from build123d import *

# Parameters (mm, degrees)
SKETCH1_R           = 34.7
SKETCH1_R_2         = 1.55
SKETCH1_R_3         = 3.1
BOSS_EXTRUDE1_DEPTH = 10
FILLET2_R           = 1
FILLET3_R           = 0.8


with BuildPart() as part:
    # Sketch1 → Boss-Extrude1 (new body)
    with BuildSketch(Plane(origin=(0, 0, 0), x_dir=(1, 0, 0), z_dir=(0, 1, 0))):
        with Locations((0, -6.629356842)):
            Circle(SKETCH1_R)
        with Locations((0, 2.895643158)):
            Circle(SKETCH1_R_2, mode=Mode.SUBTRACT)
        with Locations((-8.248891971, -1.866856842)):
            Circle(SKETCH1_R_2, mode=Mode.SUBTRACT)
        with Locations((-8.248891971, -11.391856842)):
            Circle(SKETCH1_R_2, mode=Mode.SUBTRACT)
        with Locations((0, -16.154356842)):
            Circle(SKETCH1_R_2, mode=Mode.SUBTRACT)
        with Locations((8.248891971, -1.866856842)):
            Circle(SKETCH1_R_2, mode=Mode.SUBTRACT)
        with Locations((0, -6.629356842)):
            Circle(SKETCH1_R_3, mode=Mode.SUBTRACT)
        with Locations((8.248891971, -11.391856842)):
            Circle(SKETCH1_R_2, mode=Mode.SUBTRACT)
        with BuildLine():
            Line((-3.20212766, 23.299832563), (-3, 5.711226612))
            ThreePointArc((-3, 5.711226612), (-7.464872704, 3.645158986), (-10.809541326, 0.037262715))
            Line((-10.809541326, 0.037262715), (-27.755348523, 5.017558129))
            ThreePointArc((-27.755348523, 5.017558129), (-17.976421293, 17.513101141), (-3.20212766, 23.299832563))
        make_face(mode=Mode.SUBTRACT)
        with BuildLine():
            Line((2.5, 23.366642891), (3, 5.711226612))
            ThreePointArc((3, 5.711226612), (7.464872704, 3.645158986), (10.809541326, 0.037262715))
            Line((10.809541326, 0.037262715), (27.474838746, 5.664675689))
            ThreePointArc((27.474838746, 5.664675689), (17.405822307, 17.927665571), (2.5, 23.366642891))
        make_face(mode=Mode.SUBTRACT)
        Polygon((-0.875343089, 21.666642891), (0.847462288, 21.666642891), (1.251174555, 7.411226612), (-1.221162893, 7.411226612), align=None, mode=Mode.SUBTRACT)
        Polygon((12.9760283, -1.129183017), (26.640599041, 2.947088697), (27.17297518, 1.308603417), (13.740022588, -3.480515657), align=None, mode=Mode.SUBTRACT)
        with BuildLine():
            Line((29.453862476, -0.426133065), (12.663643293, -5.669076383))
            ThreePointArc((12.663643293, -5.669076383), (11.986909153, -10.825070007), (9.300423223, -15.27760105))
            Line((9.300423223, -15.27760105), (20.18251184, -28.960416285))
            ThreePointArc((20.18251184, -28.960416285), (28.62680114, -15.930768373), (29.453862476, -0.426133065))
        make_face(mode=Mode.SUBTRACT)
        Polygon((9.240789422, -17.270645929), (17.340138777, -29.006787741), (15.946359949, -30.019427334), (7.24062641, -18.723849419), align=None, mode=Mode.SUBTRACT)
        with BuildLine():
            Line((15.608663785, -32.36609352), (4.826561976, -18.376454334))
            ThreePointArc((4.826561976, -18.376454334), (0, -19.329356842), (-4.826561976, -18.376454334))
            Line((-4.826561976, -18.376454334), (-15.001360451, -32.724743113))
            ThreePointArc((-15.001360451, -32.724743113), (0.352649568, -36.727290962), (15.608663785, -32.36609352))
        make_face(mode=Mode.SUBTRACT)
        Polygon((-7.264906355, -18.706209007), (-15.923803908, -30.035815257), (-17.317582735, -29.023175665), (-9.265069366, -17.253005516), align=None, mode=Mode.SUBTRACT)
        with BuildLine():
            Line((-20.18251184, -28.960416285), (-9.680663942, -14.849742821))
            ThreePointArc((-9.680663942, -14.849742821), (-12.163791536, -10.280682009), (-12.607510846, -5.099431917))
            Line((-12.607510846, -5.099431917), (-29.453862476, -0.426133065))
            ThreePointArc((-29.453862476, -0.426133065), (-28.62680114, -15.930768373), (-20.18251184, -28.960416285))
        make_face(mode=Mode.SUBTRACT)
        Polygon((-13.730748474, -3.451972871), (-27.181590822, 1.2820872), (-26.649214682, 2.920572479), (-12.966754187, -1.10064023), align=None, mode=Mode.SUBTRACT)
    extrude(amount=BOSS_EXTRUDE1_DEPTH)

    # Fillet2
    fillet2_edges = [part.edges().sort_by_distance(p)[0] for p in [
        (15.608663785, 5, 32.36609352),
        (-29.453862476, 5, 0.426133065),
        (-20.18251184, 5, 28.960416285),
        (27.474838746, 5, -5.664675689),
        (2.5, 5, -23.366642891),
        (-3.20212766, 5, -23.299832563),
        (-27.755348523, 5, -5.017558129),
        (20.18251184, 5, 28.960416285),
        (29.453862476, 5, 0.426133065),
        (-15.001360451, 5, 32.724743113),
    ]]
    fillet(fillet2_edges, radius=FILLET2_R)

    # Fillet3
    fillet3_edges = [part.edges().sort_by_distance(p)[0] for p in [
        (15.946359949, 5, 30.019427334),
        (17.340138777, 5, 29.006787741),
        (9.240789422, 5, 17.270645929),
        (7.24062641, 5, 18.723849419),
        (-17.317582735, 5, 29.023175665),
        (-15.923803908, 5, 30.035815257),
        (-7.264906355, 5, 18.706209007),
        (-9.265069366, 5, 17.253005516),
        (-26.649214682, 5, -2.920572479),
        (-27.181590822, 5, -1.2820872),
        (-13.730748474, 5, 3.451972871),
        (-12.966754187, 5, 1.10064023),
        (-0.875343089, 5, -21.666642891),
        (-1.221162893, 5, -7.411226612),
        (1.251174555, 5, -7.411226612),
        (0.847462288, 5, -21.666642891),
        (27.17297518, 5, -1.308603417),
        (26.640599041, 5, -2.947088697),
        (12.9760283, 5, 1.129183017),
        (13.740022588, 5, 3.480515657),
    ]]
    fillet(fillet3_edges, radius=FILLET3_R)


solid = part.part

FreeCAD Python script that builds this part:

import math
import FreeCAD as App
import Part
import Sketcher


def edges_at(feature, points):
    """Names of the edges that pass closest to the given points."""
    edges = feature.Shape.Edges
    near = lambda p: min(range(len(edges)), key=lambda i: edges[i].distToShape(Part.Vertex(*p))[0])
    return sorted({f"Edge{near(p) + 1}" for p in points})


def add_polygon(sketch, points):
    """Adds a closed chain of lines whose ends are joined by coincident constraints."""
    first, n = sketch.GeometryCount, len(points)
    for a, b in zip(points, points[1:] + points[:1]):
        sketch.addGeometry(Part.LineSegment(App.Vector(*a, 0), App.Vector(*b, 0)), False)
    for i in range(n):
        sketch.addConstraint(Sketcher.Constraint("Coincident", first + i, 2, first + (i + 1) % n, 1))

doc = App.newDocument("Part")
body = doc.addObject("PartDesign::Body", "Body")

sketch1 = body.newObject("Sketcher::SketchObject", "Sketch")
sketch1.AttachmentSupport = (doc.getObject("XZ_Plane"), [""])
sketch1.MapMode = "FlatFace"
sketch1.addGeometry(Part.Circle(App.Vector(0, 6.629357, 0), App.Vector(0, 0, 1), 34.7), False)
add_polygon(sketch1, [(-9.265069, 17.253006), (-7.264906, 18.706209), (-15.923804, 30.035815), (-17.317583, 29.023176)])
sketch1.addGeometry(Part.LineSegment(App.Vector(-9.680664, 14.849743, 0), App.Vector(-20.182512, 28.960416, 0)), False)
sketch1.addGeometry(Part.ArcOfCircle(Part.Circle(App.Vector(0, 6.629357, 0), App.Vector(0, 0, 1), 30.1), math.radians(132.106852), math.radians(191.893148)), False)
sketch1.addGeometry(Part.LineSegment(App.Vector(-29.453862, 0.426133, 0), App.Vector(-12.607511, 5.099432, 0)), False)
sketch1.addGeometry(Part.ArcOfCircle(Part.Circle(App.Vector(0, 6.629357, 0), App.Vector(0, 0, 1), 12.7), math.radians(139.663576), math.radians(186.919028)), False)
sketch1.addGeometry(Part.Circle(App.Vector(-8.248892, 11.391857, 0), App.Vector(0, 0, 1), 1.55), False)
sketch1.addGeometry(Part.LineSegment(App.Vector(4.826562, 18.376454, 0), App.Vector(15.608664, 32.366094, 0)), False)
sketch1.addGeometry(Part.ArcOfCircle(Part.Circle(App.Vector(0, 6.629357, 0), App.Vector(0, 0, 1), 30.1), math.radians(58.764274), math.radians(119.893148)), False)
sketch1.addGeometry(Part.LineSegment(App.Vector(-15.00136, 32.724743, 0), App.Vector(-4.826562, 18.376454, 0)), False)
sketch1.addGeometry(Part.ArcOfCircle(Part.Circle(App.Vector(0, 6.629357, 0), App.Vector(0, 0, 1), 12.7), math.radians(67.663576), math.radians(112.336424)), False)
add_polygon(sketch1, [(7.240626, 18.723849), (9.240789, 17.270646), (17.340139, 29.006788), (15.94636, 30.019427)])
sketch1.addGeometry(Part.Circle(App.Vector(0, 16.154357, 0), App.Vector(0, 0, 1), 1.55), False)
sketch1.addGeometry(Part.Circle(App.Vector(8.248892, 11.391857, 0), App.Vector(0, 0, 1), 1.55), False)
sketch1.addGeometry(Part.LineSegment(App.Vector(12.663643, 5.669076, 0), App.Vector(29.453862, 0.426133, 0)), False)
sketch1.addGeometry(Part.ArcOfCircle(Part.Circle(App.Vector(0, 6.629357, 0), App.Vector(0, 0, 1), 30.1), math.radians(-11.893148), math.radians(47.893148)), False)
sketch1.addGeometry(Part.LineSegment(App.Vector(20.182512, 28.960416, 0), App.Vector(9.300423, 15.277601, 0)), False)
sketch1.addGeometry(Part.ArcOfCircle(Part.Circle(App.Vector(0, 6.629357, 0), App.Vector(0, 0, 1), 12.7), math.radians(-4.336424), math.radians(42.919028)), False)
add_polygon(sketch1, [(-12.966754, 1.10064), (-13.730748, 3.451973), (-27.181591, -1.282087), (-26.649215, -2.920572)])
sketch1.addGeometry(Part.Circle(App.Vector(-8.248892, 1.866857, 0), App.Vector(0, 0, 1), 1.55), False)
sketch1.addGeometry(Part.ArcOfCircle(Part.Circle(App.Vector(0, 6.629357, 0), App.Vector(0, 0, 1), 30.1), math.radians(-157.235726), math.radians(-96.106852)), False)
sketch1.addGeometry(Part.LineSegment(App.Vector(-3.202128, -23.299833, 0), App.Vector(-3, -5.711227, 0)), False)
sketch1.addGeometry(Part.ArcOfCircle(Part.Circle(App.Vector(0, 6.629357, 0), App.Vector(0, 0, 1), 12.7), math.radians(-148.336424), math.radians(-103.663576)), False)
sketch1.addGeometry(Part.LineSegment(App.Vector(-10.809541, -0.037263, 0), App.Vector(-27.755349, -5.017558, 0)), False)
sketch1.addGeometry(Part.Circle(App.Vector(0, 6.629357, 0), App.Vector(0, 0, 1), 3.1), False)
sketch1.addGeometry(Part.Circle(App.Vector(8.248892, 1.866857, 0), App.Vector(0, 0, 1), 1.55), False)
sketch1.addGeometry(Part.Circle(App.Vector(0, -2.895643, 0), App.Vector(0, 0, 1), 1.55), False)
add_polygon(sketch1, [(13.740023, 3.480516), (12.976028, 1.129183), (26.640599, -2.947089), (27.172975, -1.308603)])
add_polygon(sketch1, [(-1.221163, -7.411227), (-0.875343, -21.666643), (0.847462, -21.666643), (1.251175, -7.411227)])
sketch1.addGeometry(Part.LineSegment(App.Vector(3, -5.711227, 0), App.Vector(2.5, -23.366643, 0)), False)
sketch1.addGeometry(Part.ArcOfCircle(Part.Circle(App.Vector(0, 6.629357, 0), App.Vector(0, 0, 1), 30.1), math.radians(-85.235726), math.radians(-24.106852)), False)
sketch1.addGeometry(Part.LineSegment(App.Vector(27.474839, -5.664676, 0), App.Vector(10.809541, -0.037263, 0)), False)
sketch1.addGeometry(Part.ArcOfCircle(Part.Circle(App.Vector(0, 6.629357, 0), App.Vector(0, 0, 1), 12.7), math.radians(-76.336424), math.radians(-31.663576)), False)
sketch1.addConstraint(Sketcher.Constraint("Coincident", 5, 2, 6, 1))
sketch1.addConstraint(Sketcher.Constraint("Coincident", 6, 2, 7, 1))
sketch1.addConstraint(Sketcher.Constraint("Coincident", 7, 2, 8, 2))
sketch1.addConstraint(Sketcher.Constraint("Coincident", 8, 1, 5, 1))
sketch1.addConstraint(Sketcher.Constraint("Coincident", 10, 2, 11, 1))
sketch1.addConstraint(Sketcher.Constraint("Coincident", 11, 2, 12, 1))
sketch1.addConstraint(Sketcher.Constraint("Coincident", 12, 2, 13, 2))
sketch1.addConstraint(Sketcher.Constraint("Coincident", 13, 1, 10, 1))
sketch1.addConstraint(Sketcher.Constraint("Coincident", 20, 2, 21, 1))
sketch1.addConstraint(Sketcher.Constraint("Coincident", 21, 2, 22, 1))
sketch1.addConstraint(Sketcher.Constraint("Coincident", 22, 2, 23, 2))
sketch1.addConstraint(Sketcher.Constraint("Coincident", 23, 1, 20, 1))
sketch1.addConstraint(Sketcher.Constraint("Coincident", 29, 2, 30, 1))
sketch1.addConstraint(Sketcher.Constraint("Coincident", 30, 2, 31, 2))
sketch1.addConstraint(Sketcher.Constraint("Coincident", 31, 1, 32, 1))
sketch1.addConstraint(Sketcher.Constraint("Coincident", 32, 2, 29, 1))
sketch1.addConstraint(Sketcher.Constraint("Coincident", 44, 2, 45, 1))
sketch1.addConstraint(Sketcher.Constraint("Coincident", 45, 2, 46, 1))
sketch1.addConstraint(Sketcher.Constraint("Coincident", 46, 2, 47, 2))
sketch1.addConstraint(Sketcher.Constraint("Coincident", 47, 1, 44, 1))
sketch1.addConstraint(Sketcher.Constraint("Horizontal", 41))
sketch1.addConstraint(Sketcher.Constraint("Horizontal", 43))
sketch1.addConstraint(Sketcher.Constraint("Coincident", 6, 3, 0, 3))
sketch1.addConstraint(Sketcher.Constraint("Coincident", 8, 3, 0, 3))
sketch1.addConstraint(Sketcher.Constraint("Coincident", 11, 3, 0, 3))
sketch1.addConstraint(Sketcher.Constraint("Coincident", 13, 3, 0, 3))
sketch1.addConstraint(Sketcher.Constraint("Coincident", 21, 3, 0, 3))
sketch1.addConstraint(Sketcher.Constraint("Coincident", 23, 3, 0, 3))
sketch1.addConstraint(Sketcher.Constraint("Coincident", 29, 3, 0, 3))
sketch1.addConstraint(Sketcher.Constraint("Coincident", 31, 3, 0, 3))
sketch1.addConstraint(Sketcher.Constraint("Coincident", 33, 3, 0, 3))
sketch1.addConstraint(Sketcher.Constraint("Coincident", 45, 3, 0, 3))
sketch1.addConstraint(Sketcher.Constraint("Coincident", 47, 3, 0, 3))
sketch1.addConstraint(Sketcher.Constraint("PointOnObject", 0, 3, -2))
sketch1.addConstraint(Sketcher.Constraint("PointOnObject", 18, 3, -2))
sketch1.addConstraint(Sketcher.Constraint("PointOnObject", 35, 3, -2))
sketch1.addConstraint(Sketcher.Constraint("Diameter", 0, 69.4))
sketch1.addConstraint(Sketcher.Constraint("Diameter", 9, 3.1))
sketch1.addConstraint(Sketcher.Constraint("Diameter", 18, 3.1))
sketch1.addConstraint(Sketcher.Constraint("Diameter", 19, 3.1))
sketch1.addConstraint(Sketcher.Constraint("Diameter", 28, 3.1))
sketch1.addConstraint(Sketcher.Constraint("Diameter", 33, 6.2))
sketch1.addConstraint(Sketcher.Constraint("Diameter", 34, 3.1))
sketch1.addConstraint(Sketcher.Constraint("Diameter", 35, 3.1))
sketch1.addConstraint(Sketcher.Constraint("Radius", 6, 30.1))
sketch1.addConstraint(Sketcher.Constraint("Radius", 8, 12.7))
sketch1.addConstraint(Sketcher.Constraint("Radius", 11, 30.1))
sketch1.addConstraint(Sketcher.Constraint("Radius", 13, 12.7))
sketch1.addConstraint(Sketcher.Constraint("Radius", 21, 30.1))
sketch1.addConstraint(Sketcher.Constraint("Radius", 23, 12.7))
sketch1.addConstraint(Sketcher.Constraint("Radius", 29, 30.1))
sketch1.addConstraint(Sketcher.Constraint("Radius", 31, 12.7))
sketch1.addConstraint(Sketcher.Constraint("Radius", 45, 30.1))
sketch1.addConstraint(Sketcher.Constraint("Radius", 47, 12.7))
sketch1.addConstraint(Sketcher.Constraint("DistanceX", 30, 2, -1, 1, 3.0))
sketch1.addConstraint(Sketcher.Constraint("DistanceX", -1, 1, 47, 1, 3.0))
sketch1.addConstraint(Sketcher.Constraint("DistanceX", -1, 1, 44, 2, 2.5))
sketch1.addConstraint(Sketcher.Constraint("DistanceY", 42, 2, 30, 2, 1.7))
sketch1.addConstraint(Sketcher.Constraint("DistanceY", 44, 2, 41, 2, 1.7))
sketch1.addConstraint(Sketcher.Constraint("DistanceY", 13, 3, 18, 3, 9.525))
sketch1.addConstraint(Sketcher.Constraint("DistanceY", 28, 3, 9, 3, 9.525))
sketch1.addConstraint(Sketcher.Constraint("DistanceY", 34, 3, 19, 3, 9.525))
sketch1.addConstraint(Sketcher.Constraint("DistanceY", 35, 3, 23, 3, 9.525))
sketch1.addConstraint(Sketcher.Constraint("DistanceY", -1, 1, 22, 2, 15.277601))
sketch1.addConstraint(Sketcher.Constraint("DistanceX", -1, 1, 37, 2, 26.640599))
sketch1.addConstraint(Sketcher.Constraint("DistanceY", 8, 3, 9, 3, 4.7625))
sketch1.addConstraint(Sketcher.Constraint("DistanceY", 6, 3, 19, 3, 4.7625))
sketch1.addConstraint(Sketcher.Constraint("DistanceY", 5, 2, 2, 2, 1.075399))
sketch1.addConstraint(Sketcher.Constraint("DistanceX", 8, 1, 12, 2, 4.854102))
sketch1.addConstraint(Sketcher.Constraint("DistanceX", 25, 2, 28, 3, 18.932699))
sketch1.addConstraint(Sketcher.Constraint("DistanceX", 25, 2, 9, 3, 18.932699))
sketch1.addConstraint(Sketcher.Constraint("DistanceY", 32, 2, 27, 2, 6.118198))
sketch1.addConstraint(Sketcher.Constraint("DistanceX", 32, 2, 24, 2, 14.0246))
sketch1.addConstraint(Sketcher.Constraint("DistanceX", 22, 2, 39, 2, 4.439599))
sketch1.addConstraint(Sketcher.Constraint("DistanceX", 31, 1, 40, 2, 9.934198))
sketch1.addConstraint(Sketcher.Constraint("DistanceX", 46, 2, 23, 1, 1.854102))
sketch1.addConstraint(Sketcher.Constraint("Distance", 2, 14.25961))
sketch1.addConstraint(Sketcher.Constraint("Distance", 4, 14.261132))
sketch1.addConstraint(Sketcher.Constraint("Distance", 15, 14.25961))
sketch1.addConstraint(Sketcher.Constraint("Distance", 17, 14.261132))
sketch1.addConstraint(Sketcher.Constraint("Distance", 25, 14.25961))
sketch1.addConstraint(Sketcher.Constraint("Distance", 27, 14.261132))
sketch1.addConstraint(Sketcher.Constraint("Distance", 37, 14.25961))
sketch1.addConstraint(Sketcher.Constraint("Distance", 39, 14.261132))
sketch1.addConstraint(Sketcher.Constraint("Distance", 40, 14.25961))
sketch1.addConstraint(Sketcher.Constraint("Distance", 42, 14.261132))
sketch1.addConstraint(Sketcher.Constraint("DistanceX", 41, 1, 41, 2, 1.722805))
sketch1.addConstraint(Sketcher.Constraint("DistanceX", 9, 3, -1, 1, 8.248892))
sketch1.addConstraint(Sketcher.Constraint("DistanceX", -1, 1, 19, 3, 8.248892))
sketch1.addConstraint(Sketcher.Constraint("DistanceX", -1, 1, 34, 3, 8.248892))
sketch1.addConstraint(Sketcher.Constraint("DistanceY", -1, 1, 1, 2, 18.706209))
sketch1.addConstraint(Sketcher.Constraint("DistanceX", 4, 2, -1, 1, 9.265069))
sketch1.addConstraint(Sketcher.Constraint("DistanceX", 5, 2, -1, 1, 20.182512))
sketch1.addConstraint(Sketcher.Constraint("DistanceX", 7, 2, -1, 1, 12.607511))
sketch1.addConstraint(Sketcher.Constraint("DistanceY", -1, 1, 7, 2, 5.099432))
sketch1.addConstraint(Sketcher.Constraint("DistanceX", 11, 2, -1, 1, 15.00136))
sketch1.addConstraint(Sketcher.Constraint("DistanceX", 12, 2, -1, 1, 4.826562))
sketch1.addConstraint(Sketcher.Constraint("DistanceX", -1, 1, 13, 1, 4.826562))
sketch1.addConstraint(Sketcher.Constraint("DistanceX", -1, 1, 14, 2, 9.240789))
sketch1.addConstraint(Sketcher.Constraint("DistanceX", -1, 1, 15, 2, 17.340139))
sketch1.addConstraint(Sketcher.Constraint("DistanceX", -1, 1, 16, 2, 15.94636))
sketch1.addConstraint(Sketcher.Constraint("DistanceY", -1, 1, 17, 2, 18.723849))
sketch1.addConstraint(Sketcher.Constraint("DistanceX", -1, 1, 21, 2, 20.182512))
sketch1.addConstraint(Sketcher.Constraint("DistanceX", 24, 2, -1, 1, 13.730748))
sketch1.addConstraint(Sketcher.Constraint("DistanceX", 31, 1, -1, 1, 10.809541))
sketch1.addConstraint(Sketcher.Constraint("DistanceX", -1, 1, 36, 2, 12.976028))
sketch1.addConstraint(Sketcher.Constraint("DistanceY", 37, 2, -1, 1, 2.947089))
sketch1.addConstraint(Sketcher.Constraint("DistanceX", -1, 1, 45, 2, 27.474839))
sketch1.addConstraint(Sketcher.Constraint("DistanceX", -1, 1, 46, 2, 10.809541))
sketch1.addConstraint(Sketcher.Constraint("DistanceX", 2, 2, 9, 3, 7.674912))
sketch1.addConstraint(Sketcher.Constraint("DistanceX", 3, 2, 2, 2, 1.393779))
sketch1.addConstraint(Sketcher.Constraint("DistanceY", 3, 2, 2, 2, 1.01264))
sketch1.addConstraint(Sketcher.Constraint("DistanceX", 6, 2, 28, 3, 21.204971))
sketch1.addConstraint(Sketcher.Constraint("DistanceX", 19, 3, 10, 2, 7.359772))
sketch1.addConstraint(Sketcher.Constraint("DistanceY", 14, 2, 13, 1, 1.105808))
sketch1.addConstraint(Sketcher.Constraint("DistanceY", 15, 2, 16, 2, 1.01264))
sketch1.addConstraint(Sketcher.Constraint("DistanceX", 34, 3, 20, 2, 21.204971))
sketch1.addConstraint(Sketcher.Constraint("DistanceY", 24, 2, 7, 2, 1.647459))
sketch1.addConstraint(Sketcher.Constraint("DistanceY", 26, 2, 28, 3, 4.787429))
sketch1.addConstraint(Sketcher.Constraint("DistanceY", 29, 2, 35, 3, 20.404189))
sketch1.addConstraint(Sketcher.Constraint("DistanceX", 23, 1, 38, 2, 14.509332))
sketch1.addConstraint(Sketcher.Constraint("DistanceY", 38, 2, 23, 1, 6.97768))
sketch1.addConstraint(Sketcher.Constraint("Distance", 24, 2.472337))
pad1 = body.newObject("PartDesign::Pad", "Pad")
pad1.Profile = sketch1
pad1.Length = 10
pad1.Reversed = True
doc.recompute()

fillet = body.newObject("PartDesign::Fillet", "Fillet")
fillet.Base = (pad1, edges_at(pad1, [
    (15.609, 5, 32.366),
    (-29.454, 5, 0.426),
    (-20.183, 5, 28.96),
    (27.475, 5, -5.665),
    (2.5, 5, -23.367),
    (-3.202, 5, -23.3),
    (-27.755, 5, -5.018),
    (20.183, 5, 28.96),
    (29.454, 5, 0.426),
    (-15.001, 5, 32.725),
]))
fillet.Radius = 1
doc.recompute()

fillet2 = body.newObject("PartDesign::Fillet", "Fillet001")
fillet2.Base = (fillet, edges_at(fillet, [
    (15.946, 5, 30.019),
    (17.34, 5, 29.007),
    (9.241, 5, 17.271),
    (7.241, 5, 18.724),
    (-17.318, 5, 29.023),
    (-15.924, 5, 30.036),
    (-7.265, 5, 18.706),
    (-9.265, 5, 17.253),
    (-26.649, 5, -2.921),
    (-27.182, 5, -1.282),
    (-13.731, 5, 3.452),
    (-12.967, 5, 1.101),
    (-0.875, 5, -21.667),
    (-1.221, 5, -7.411),
    (1.251, 5, -7.411),
    (0.847, 5, -21.667),
    (27.173, 5, -1.309),
    (26.641, 5, -2.947),
    (12.976, 5, 1.129),
    (13.74, 5, 3.481),
]))
fillet2.Radius = 0.8

doc.recompute()
